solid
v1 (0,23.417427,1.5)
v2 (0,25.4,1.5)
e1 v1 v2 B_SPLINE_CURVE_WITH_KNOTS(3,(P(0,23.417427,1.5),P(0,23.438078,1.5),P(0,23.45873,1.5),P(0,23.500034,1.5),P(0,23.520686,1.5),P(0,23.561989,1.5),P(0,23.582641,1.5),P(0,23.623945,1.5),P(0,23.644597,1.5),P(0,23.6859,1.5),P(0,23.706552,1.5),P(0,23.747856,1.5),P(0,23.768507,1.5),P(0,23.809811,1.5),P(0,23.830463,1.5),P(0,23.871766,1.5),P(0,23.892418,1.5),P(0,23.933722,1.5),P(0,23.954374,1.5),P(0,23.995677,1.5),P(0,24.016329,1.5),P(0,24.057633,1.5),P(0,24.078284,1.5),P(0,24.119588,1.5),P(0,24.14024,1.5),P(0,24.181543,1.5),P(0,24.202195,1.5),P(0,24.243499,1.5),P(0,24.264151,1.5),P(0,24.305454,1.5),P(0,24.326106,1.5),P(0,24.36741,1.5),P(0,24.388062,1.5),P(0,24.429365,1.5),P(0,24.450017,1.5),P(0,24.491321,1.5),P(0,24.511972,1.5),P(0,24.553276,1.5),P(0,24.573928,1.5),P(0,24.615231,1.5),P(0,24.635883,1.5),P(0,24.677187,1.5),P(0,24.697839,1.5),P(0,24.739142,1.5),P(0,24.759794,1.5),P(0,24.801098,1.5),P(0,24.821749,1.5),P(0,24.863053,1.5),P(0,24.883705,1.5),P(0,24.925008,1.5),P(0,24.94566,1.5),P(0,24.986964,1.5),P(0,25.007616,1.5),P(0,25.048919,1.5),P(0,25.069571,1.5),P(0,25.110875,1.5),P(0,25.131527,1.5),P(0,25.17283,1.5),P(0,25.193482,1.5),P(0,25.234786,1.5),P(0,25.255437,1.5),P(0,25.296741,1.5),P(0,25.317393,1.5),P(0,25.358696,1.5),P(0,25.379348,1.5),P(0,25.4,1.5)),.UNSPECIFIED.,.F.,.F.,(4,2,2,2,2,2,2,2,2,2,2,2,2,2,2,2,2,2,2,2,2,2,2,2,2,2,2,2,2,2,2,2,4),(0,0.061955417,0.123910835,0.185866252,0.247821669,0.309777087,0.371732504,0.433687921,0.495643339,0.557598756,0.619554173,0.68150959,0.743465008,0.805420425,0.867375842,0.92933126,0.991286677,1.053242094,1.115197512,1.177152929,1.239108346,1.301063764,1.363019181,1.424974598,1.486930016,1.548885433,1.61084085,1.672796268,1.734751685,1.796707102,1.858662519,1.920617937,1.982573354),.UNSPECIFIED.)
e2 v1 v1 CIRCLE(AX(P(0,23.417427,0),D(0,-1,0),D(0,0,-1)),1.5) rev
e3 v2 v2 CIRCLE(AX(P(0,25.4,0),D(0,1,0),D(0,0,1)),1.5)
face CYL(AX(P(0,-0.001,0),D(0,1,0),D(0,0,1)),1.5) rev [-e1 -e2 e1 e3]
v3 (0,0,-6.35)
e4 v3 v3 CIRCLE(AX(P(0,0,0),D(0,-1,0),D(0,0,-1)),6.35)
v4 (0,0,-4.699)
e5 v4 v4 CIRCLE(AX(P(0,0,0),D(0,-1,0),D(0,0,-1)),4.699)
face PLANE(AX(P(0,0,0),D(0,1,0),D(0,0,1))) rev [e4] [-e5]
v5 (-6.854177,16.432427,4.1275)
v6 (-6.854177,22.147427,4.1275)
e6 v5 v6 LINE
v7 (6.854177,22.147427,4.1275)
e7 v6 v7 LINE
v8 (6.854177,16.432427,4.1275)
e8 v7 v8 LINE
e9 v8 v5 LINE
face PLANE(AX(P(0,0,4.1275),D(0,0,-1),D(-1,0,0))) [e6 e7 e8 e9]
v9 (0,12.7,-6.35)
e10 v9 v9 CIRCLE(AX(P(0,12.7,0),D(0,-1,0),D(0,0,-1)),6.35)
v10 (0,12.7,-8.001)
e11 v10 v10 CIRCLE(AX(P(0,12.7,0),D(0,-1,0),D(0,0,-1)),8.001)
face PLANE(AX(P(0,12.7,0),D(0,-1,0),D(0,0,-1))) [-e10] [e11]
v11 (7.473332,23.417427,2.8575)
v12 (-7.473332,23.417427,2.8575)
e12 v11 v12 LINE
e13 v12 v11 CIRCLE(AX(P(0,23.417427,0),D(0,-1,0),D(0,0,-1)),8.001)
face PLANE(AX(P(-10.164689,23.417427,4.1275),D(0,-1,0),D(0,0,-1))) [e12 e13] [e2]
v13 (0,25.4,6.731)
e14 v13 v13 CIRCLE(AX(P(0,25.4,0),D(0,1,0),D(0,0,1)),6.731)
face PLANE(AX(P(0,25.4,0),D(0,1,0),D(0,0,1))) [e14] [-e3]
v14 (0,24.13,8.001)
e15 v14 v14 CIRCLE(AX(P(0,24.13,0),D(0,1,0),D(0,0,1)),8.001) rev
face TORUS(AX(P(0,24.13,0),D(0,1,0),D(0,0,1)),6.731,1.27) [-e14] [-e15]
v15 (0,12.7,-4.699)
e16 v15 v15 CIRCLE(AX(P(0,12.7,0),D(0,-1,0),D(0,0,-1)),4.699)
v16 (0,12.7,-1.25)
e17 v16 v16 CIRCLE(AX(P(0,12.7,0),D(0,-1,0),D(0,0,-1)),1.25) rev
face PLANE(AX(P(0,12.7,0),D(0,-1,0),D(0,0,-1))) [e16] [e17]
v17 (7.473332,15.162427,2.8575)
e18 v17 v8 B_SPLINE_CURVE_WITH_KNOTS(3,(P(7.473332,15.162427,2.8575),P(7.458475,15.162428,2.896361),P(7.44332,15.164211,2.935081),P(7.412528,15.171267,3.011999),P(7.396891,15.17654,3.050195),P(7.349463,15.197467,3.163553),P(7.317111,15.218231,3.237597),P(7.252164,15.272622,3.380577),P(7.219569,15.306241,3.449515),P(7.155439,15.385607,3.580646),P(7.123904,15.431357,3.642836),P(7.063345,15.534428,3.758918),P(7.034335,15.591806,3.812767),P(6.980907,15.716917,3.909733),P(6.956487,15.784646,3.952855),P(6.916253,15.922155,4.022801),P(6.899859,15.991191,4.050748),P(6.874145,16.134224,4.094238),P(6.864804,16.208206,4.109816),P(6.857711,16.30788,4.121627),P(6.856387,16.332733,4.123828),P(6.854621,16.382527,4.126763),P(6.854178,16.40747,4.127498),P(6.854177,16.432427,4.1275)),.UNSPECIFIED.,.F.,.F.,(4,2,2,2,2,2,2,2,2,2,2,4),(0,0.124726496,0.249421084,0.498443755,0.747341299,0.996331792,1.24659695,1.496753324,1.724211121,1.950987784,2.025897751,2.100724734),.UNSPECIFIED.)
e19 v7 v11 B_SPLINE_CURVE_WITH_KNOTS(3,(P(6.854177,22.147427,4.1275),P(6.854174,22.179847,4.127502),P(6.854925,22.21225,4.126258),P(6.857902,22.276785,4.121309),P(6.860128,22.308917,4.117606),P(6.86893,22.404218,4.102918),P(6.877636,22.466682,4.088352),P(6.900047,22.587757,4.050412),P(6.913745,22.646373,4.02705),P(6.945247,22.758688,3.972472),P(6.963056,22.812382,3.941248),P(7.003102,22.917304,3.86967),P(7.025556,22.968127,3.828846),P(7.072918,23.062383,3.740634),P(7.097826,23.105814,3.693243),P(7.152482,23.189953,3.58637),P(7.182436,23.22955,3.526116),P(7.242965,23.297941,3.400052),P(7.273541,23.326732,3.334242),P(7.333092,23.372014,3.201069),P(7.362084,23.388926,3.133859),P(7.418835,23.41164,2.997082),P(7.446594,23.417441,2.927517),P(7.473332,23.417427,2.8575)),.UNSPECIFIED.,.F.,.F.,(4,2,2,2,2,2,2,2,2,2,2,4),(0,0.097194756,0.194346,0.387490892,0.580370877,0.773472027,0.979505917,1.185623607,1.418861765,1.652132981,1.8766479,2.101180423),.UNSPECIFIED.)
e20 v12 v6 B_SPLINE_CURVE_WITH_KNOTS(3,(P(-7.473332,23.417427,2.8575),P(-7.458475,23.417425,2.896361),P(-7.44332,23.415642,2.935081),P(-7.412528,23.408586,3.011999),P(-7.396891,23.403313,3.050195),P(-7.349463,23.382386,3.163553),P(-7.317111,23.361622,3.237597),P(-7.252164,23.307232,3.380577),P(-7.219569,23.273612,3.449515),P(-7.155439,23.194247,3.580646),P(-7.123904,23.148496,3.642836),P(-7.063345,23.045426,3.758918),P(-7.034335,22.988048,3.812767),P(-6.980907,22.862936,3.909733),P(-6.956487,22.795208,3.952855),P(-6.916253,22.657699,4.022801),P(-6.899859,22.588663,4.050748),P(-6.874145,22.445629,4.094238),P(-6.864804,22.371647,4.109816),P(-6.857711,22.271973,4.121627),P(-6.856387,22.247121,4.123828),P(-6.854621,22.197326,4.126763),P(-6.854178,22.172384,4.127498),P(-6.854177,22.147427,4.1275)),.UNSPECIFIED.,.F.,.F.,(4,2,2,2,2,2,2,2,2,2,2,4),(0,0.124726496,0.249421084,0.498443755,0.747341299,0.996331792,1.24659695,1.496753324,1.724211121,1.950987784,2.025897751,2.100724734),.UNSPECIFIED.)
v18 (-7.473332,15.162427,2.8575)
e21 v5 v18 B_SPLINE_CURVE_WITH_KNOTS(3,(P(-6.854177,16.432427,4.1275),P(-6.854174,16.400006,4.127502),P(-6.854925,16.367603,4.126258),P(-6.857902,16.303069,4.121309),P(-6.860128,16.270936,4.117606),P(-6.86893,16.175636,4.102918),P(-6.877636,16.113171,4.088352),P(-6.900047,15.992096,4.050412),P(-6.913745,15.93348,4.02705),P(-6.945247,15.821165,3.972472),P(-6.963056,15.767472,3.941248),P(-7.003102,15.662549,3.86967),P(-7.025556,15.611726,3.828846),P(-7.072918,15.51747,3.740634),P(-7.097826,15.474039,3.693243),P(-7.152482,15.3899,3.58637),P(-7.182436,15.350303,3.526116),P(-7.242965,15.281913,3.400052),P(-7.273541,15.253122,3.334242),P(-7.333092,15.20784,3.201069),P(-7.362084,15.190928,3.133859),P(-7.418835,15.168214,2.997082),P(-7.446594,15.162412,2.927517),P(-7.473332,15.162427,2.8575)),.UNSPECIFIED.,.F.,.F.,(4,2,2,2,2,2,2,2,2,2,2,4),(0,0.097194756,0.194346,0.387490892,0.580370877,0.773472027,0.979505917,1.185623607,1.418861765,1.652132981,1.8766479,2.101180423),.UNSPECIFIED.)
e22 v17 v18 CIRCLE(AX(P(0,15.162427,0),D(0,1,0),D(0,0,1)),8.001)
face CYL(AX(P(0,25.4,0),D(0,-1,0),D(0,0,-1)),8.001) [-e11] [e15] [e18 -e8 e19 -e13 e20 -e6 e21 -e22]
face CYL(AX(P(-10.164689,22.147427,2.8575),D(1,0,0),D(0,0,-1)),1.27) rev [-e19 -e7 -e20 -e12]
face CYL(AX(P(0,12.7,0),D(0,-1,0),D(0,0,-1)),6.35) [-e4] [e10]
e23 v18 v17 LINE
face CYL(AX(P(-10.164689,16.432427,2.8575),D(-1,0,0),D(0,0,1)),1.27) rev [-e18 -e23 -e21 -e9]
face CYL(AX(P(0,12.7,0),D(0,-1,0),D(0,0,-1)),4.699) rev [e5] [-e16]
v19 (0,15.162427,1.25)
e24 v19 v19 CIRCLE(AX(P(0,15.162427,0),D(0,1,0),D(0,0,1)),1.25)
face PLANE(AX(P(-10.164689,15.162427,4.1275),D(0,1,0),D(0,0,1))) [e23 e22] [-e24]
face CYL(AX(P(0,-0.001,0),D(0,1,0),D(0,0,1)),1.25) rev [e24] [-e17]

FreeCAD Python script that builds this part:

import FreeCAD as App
import Part
import Sketcher

V = App.Vector
Q = App.Units.Quantity


def edges_at(feature, points):
    """Names of the edges that pass closest to the given points."""
    edges = feature.Shape.Edges
    near = lambda p: min(range(len(edges)), key=lambda i: edges[i].distToShape(Part.Vertex(*p))[0])
    return sorted({f"Edge{near(p) + 1}" for p in points})

doc = App.newDocument("Part")
body = doc.addObject("PartDesign::Body", "Body")

# Sketch on XZ plane
sketch1 = doc.addObject("Sketcher::SketchObject", "Sketch")
body.addObject(sketch1)
sketch1.AttachmentSupport = (doc.XZ_Plane, [""])
sketch1.MapMode = "FlatFace"
sketch1.addGeometry(Part.Circle(V(0, 0, 0), V(0, 0, 1), 8.001), False)
sketch1.addConstraint([
    Sketcher.Constraint("Coincident", 0, 3, -1, 1),
    Sketcher.Constraint("Diameter", 0, Q("0.63 in")),
])
pad1 = doc.addObject("PartDesign::Pad", "Pad")
body.addObject(pad1)
pad1.Profile = sketch1
pad1.Length = Q("1 in")
pad1.Reversed = True

# Sketch on XZ plane
sketch2 = doc.addObject("Sketcher::SketchObject", "Sketch001")
body.addObject(sketch2)
sketch2.AttachmentSupport = (doc.XZ_Plane, [""])
sketch2.MapMode = "FlatFace"
sketch2.addGeometry([
    Part.Circle(V(0, 0, 0), V(0, 0, 1), 8.001),
    Part.Circle(V(0, 0, 0), V(0, 0, 1), 6.35),
    Part.Circle(V(0, 0, 0), V(0, 0, 1), 4.699),
], False)
sketch2.addConstraint([
    Sketcher.Constraint("Coincident", 0, 3, -1, 1),
    Sketcher.Constraint("Coincident", 1, 3, -1, 1),
    Sketcher.Constraint("Coincident", 2, 3, -1, 1),
    Sketcher.Constraint("Diameter", 1, Q("0.5 in")),
    Sketcher.Constraint("Diameter", 0, Q("0.63 in")),
    Sketcher.Constraint("Diameter", 2, Q("0.37 in")),
])
pocket1 = doc.addObject("PartDesign::Pocket", "Pocket")
body.addObject(pocket1)
pocket1.Profile = sketch2
pocket1.Length = Q("0.5 in")

# Sketch on XY plane
sketch3 = doc.addObject("Sketcher::SketchObject", "Sketch002")
body.addObject(sketch3)
sketch3.AttachmentSupport = (doc.XY_Plane, [""])
sketch3.MapMode = "FlatFace"
sketch3.addGeometry([
    Part.LineSegment(V(-10.164689, 23.417427, 0), V(-10.164689, 15.162427, 0)),
    Part.LineSegment(V(-10.164689, 15.162427, 0), V(11.049511, 15.162427, 0)),
    Part.LineSegment(V(11.049511, 15.162427, 0), V(11.049511, 23.417427, 0)),
    Part.LineSegment(V(11.049511, 23.417427, 0), V(-10.164689, 23.417427, 0)),
], False)
sketch3.addConstraint([
    Sketcher.Constraint("Coincident", 0, 2, 1, 1),
    Sketcher.Constraint("Coincident", 1, 2, 2, 1),
    Sketcher.Constraint("Coincident", 2, 2, 3, 1),
    Sketcher.Constraint("Coincident", 3, 2, 0, 1),
    Sketcher.Constraint("Vertical", 0),
    Sketcher.Constraint("Horizontal", 1),
    Sketcher.Constraint("Vertical", 2),
    Sketcher.Constraint("Horizontal", 3),
    Sketcher.Constraint("DistanceY", 0, 2, 0, 1, Q("0.325 in")),
    Sketcher.Constraint("DistanceX", 1, 1, 1, 2, Q("21.2142 mm")),
    Sketcher.Constraint("DistanceX", 0, 2, -1, 1, Q("10.164689 mm")),
    Sketcher.Constraint("DistanceY", -1, 1, 0, 2, Q("15.162427 mm")),
])
pocket2 = doc.addObject("PartDesign::Pocket", "Pocket001")
body.addObject(pocket2)
pocket2.Profile = sketch3
pocket2.Type = "TwoLengths"
pocket2.Length = Q("0.1625 in")
pocket2.Length2 = Q("0.5 in")
pocket2.Reversed = True

# Sketch on XZ plane
sketch4 = doc.addObject("Sketcher::SketchObject", "Sketch003")
body.addObject(sketch4)
sketch4.AttachmentSupport = (doc.XZ_Plane, [""])
sketch4.MapMode = "FlatFace"
sketch4.AttachmentOffset = App.Placement(V(0, 0, -1 * 25.4), App.Rotation())
sketch4.addGeometry(Part.Circle(V(0, 0, 0), V(0, 0, 1), 1.5), False)
sketch4.addConstraint([
    Sketcher.Constraint("Coincident", 0, 3, -1, 1),
    Sketcher.Constraint("Diameter", 0, Q("3 mm")),
])
pocket3 = doc.addObject("PartDesign::Pocket", "Pocket002")
body.addObject(pocket3)
pocket3.Profile = sketch4
pocket3.Type = "UpToFirst"
pocket3.Reversed = True
doc.recompute()

fillet = doc.addObject("PartDesign::Fillet", "Fillet")
body.addObject(fillet)
fillet.Base = (pocket3, edges_at(pocket3, [(0, 23.417, 4.128), (0, 15.162, 4.128)]))
fillet.Radius = Q("0.05 in")
doc.recompute()

fillet2 = doc.addObject("PartDesign::Fillet", "Fillet001")
body.addObject(fillet2)
fillet2.Base = (fillet, edges_at(fillet, [(0, 25.4, -8.001)]))
fillet2.Radius = Q("0.05 in")

# Sketch on XZ plane
sketch5 = doc.addObject("Sketcher::SketchObject", "Sketch004")
body.addObject(sketch5)
sketch5.AttachmentSupport = (doc.XZ_Plane, [""])
sketch5.MapMode = "FlatFace"
sketch5.AttachmentOffset = App.Placement(V(0, 0, -15.162427), App.Rotation())
sketch5.addGeometry(Part.Circle(V(0, 0, 0), V(0, 0, 1), 1.25), False)
sketch5.addConstraint([
    Sketcher.Constraint("Coincident", 0, 3, -1, 1),
    Sketcher.Constraint("Diameter", 0, Q("2.5 mm")),
])
pocket4 = doc.addObject("PartDesign::Pocket", "Pocket003")
body.addObject(pocket4)
pocket4.Profile = sketch5
pocket4.Type = "UpToFirst"
pocket4.Reversed = True

doc.recompute()
